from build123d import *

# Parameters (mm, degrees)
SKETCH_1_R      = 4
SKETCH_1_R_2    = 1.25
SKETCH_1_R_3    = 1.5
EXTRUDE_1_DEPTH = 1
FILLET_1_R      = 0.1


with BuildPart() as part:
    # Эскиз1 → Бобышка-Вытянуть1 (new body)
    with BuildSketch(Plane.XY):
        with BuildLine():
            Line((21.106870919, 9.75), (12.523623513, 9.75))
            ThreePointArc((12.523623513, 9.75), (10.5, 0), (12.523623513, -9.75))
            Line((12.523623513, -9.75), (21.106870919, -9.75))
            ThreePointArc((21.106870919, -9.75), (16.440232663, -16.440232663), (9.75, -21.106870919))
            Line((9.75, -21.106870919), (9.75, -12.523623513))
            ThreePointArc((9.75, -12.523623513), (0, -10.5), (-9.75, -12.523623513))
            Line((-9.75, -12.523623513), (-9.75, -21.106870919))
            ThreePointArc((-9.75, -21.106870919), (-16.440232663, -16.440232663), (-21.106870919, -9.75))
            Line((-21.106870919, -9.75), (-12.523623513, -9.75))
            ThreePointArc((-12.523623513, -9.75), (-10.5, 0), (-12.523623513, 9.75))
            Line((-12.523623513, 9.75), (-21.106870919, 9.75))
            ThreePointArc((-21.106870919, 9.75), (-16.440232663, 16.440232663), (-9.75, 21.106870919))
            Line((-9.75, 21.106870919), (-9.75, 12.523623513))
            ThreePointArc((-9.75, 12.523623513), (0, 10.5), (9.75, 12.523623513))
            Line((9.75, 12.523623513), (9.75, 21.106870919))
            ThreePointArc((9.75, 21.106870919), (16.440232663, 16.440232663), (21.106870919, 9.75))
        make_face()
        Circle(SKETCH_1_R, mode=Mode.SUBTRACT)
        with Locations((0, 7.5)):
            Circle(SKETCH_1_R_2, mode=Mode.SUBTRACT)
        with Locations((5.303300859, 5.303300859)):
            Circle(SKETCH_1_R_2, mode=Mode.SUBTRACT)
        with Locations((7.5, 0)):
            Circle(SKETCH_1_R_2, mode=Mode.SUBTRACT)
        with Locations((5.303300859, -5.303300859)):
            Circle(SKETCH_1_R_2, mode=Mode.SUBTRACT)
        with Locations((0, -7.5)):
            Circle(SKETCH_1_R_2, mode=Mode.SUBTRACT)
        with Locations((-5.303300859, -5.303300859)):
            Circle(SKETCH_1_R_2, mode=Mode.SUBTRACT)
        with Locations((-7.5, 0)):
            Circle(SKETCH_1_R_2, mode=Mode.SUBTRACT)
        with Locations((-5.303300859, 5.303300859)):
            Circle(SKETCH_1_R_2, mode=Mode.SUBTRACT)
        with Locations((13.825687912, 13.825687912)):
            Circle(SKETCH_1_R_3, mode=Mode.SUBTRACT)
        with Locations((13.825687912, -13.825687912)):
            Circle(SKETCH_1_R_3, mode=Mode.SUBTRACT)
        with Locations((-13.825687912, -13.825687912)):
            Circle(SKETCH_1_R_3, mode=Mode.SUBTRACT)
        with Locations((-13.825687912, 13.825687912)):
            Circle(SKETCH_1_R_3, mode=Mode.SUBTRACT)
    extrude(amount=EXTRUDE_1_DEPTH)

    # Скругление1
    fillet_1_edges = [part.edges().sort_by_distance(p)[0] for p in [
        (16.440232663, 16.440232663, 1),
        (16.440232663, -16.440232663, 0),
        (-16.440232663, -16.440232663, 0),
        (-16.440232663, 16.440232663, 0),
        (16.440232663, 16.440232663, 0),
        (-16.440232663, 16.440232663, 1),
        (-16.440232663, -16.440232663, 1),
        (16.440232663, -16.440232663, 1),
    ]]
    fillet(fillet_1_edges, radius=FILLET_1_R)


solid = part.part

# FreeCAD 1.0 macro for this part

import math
import FreeCAD as App
import Part
import Sketcher


def edges_at(feature, points):
    """Names of the edges that pass closest to the given points."""
    edges = feature.Shape.Edges
    near = lambda p: min(range(len(edges)), key=lambda i: edges[i].distToShape(Part.Vertex(*p))[0])
    return sorted({f"Edge{near(p) + 1}" for p in points})

doc = App.newDocument("Part")
params = doc.addObject("Spreadsheet::Sheet", "Params")
for row, (alias, value) in enumerate([
    ("sketch1_diameter", "3 mm"),
    ("sketch1_diameter2", "8 mm"),
    ("sketch1_diameter3", "2.5 mm"),
    ("sketch1_radius", "24.5 mm"),
    ("sketch1_radius2", "23.25 mm"),
    ("pad1_length", "1 mm"),
    ("fillet_radius", "0.1 mm"),
], start=1):
    params.set(f"A{row}", alias)
    params.set(f"B{row}", "=" + value)
    params.setAlias(f"B{row}", alias)

body = doc.addObject("PartDesign::Body", "Body")

# Sketch on XY plane
sketch1 = doc.addObject("Sketcher::SketchObject", "Sketch")
body.addObject(sketch1)
sketch1.AttachmentSupport = (doc.XY_Plane, [""])
sketch1.MapMode = "FlatFace"
sketch1.addGeometry([
    Part.LineSegment(App.Vector(12.5, 9.8, 0), App.Vector(21.1, 9.8, 0)),  # 0
    Part.ArcOfCircle(Part.Circle(App.Vector(0, 0, 0), App.Vector(0, 0, 1), 23.2), math.radians(25), math.radians(65)),  # 1
    Part.LineSegment(App.Vector(9.8, 21.1, 0), App.Vector(9.8, 12.5, 0)),  # 2
    Part.ArcOfCircle(Part.Circle(App.Vector(0, 35, 0), App.Vector(0, 0, 1), 24.5), math.radians(-113), math.radians(-67)),  # 3
    Part.LineSegment(App.Vector(-9.8, 12.5, 0), App.Vector(-9.8, 21.1, 0)),  # 4
    Part.ArcOfCircle(Part.Circle(App.Vector(0, 0, 0), App.Vector(0, 0, 1), 23.2), math.radians(115), math.radians(155)),  # 5
    Part.LineSegment(App.Vector(-21.1, 9.8, 0), App.Vector(-12.5, 9.8, 0)),  # 6
    Part.ArcOfCircle(Part.Circle(App.Vector(-35, 0, 0), App.Vector(0, 0, 1), 24.5), math.radians(-23), math.radians(23)),  # 7
    Part.LineSegment(App.Vector(-12.5, -9.8, 0), App.Vector(-21.1, -9.8, 0)),  # 8
    Part.ArcOfCircle(Part.Circle(App.Vector(0, 0, 0), App.Vector(0, 0, 1), 23.2), math.radians(-155), math.radians(-115)),  # 9
    Part.LineSegment(App.Vector(-9.8, -21.1, 0), App.Vector(-9.8, -12.5, 0)),  # 10
    Part.ArcOfCircle(Part.Circle(App.Vector(0, -35, 0), App.Vector(0, 0, 1), 24.5), math.radians(67), math.radians(113)),  # 11
    Part.LineSegment(App.Vector(9.8, -12.5, 0), App.Vector(9.8, -21.1, 0)),  # 12
    Part.ArcOfCircle(Part.Circle(App.Vector(0, 0, 0), App.Vector(0, 0, 1), 23.2), math.radians(-65), math.radians(-25)),  # 13
    Part.LineSegment(App.Vector(21.1, -9.8, 0), App.Vector(12.5, -9.8, 0)),  # 14
    Part.ArcOfCircle(Part.Circle(App.Vector(35, 0, 0), App.Vector(0, 0, 1), 24.5), math.radians(157), math.radians(203)),  # 15
    Part.Circle(App.Vector(13.8, -13.8, 0), App.Vector(0, 0, 1), 1.5),  # 16
    Part.Circle(App.Vector(5.3, -5.3, 0), App.Vector(0, 0, 1), 1.2),  # 17
    Part.Circle(App.Vector(0, -7.5, 0), App.Vector(0, 0, 1), 1.2),  # 18
    Part.Circle(App.Vector(7.5, 0, 0), App.Vector(0, 0, 1), 1.2),  # 19
    Part.Circle(App.Vector(0, 0, 0), App.Vector(0, 0, 1), 4),  # 20
    Part.Circle(App.Vector(-13.8, -13.8, 0), App.Vector(0, 0, 1), 1.5),  # 21
    Part.Circle(App.Vector(-5.3, -5.3, 0), App.Vector(0, 0, 1), 1.2),  # 22
    Part.Circle(App.Vector(-7.5, 0, 0), App.Vector(0, 0, 1), 1.2),  # 23
    Part.Circle(App.Vector(5.3, 5.3, 0), App.Vector(0, 0, 1), 1.2),  # 24
    Part.Circle(App.Vector(0, 7.5, 0), App.Vector(0, 0, 1), 1.2),  # 25
    Part.Circle(App.Vector(13.8, 13.8, 0), App.Vector(0, 0, 1), 1.5),  # 26
    Part.Circle(App.Vector(-5.3, 5.3, 0), App.Vector(0, 0, 1), 1.2),  # 27
    Part.Circle(App.Vector(-13.8, 13.8, 0), App.Vector(0, 0, 1), 1.5),  # 28
], False)
sketch1.addConstraint([
    Sketcher.Constraint("Coincident", 0, 2, 1, 1),
    Sketcher.Constraint("Coincident", 1, 2, 2, 1),
    Sketcher.Constraint("Coincident", 2, 2, 3, 2),
    Sketcher.Constraint("Coincident", 3, 1, 4, 1),
    Sketcher.Constraint("Coincident", 4, 2, 5, 1),
    Sketcher.Constraint("Coincident", 5, 2, 6, 1),
    Sketcher.Constraint("Coincident", 6, 2, 7, 2),
    Sketcher.Constraint("Coincident", 7, 1, 8, 1),
    Sketcher.Constraint("Coincident", 8, 2, 9, 1),
    Sketcher.Constraint("Coincident", 9, 2, 10, 1),
    Sketcher.Constraint("Coincident", 10, 2, 11, 2),
    Sketcher.Constraint("Coincident", 11, 1, 12, 1),
    Sketcher.Constraint("Coincident", 12, 2, 13, 1),
    Sketcher.Constraint("Coincident", 13, 2, 14, 1),
    Sketcher.Constraint("Coincident", 14, 2, 15, 2),
    Sketcher.Constraint("Coincident", 15, 1, 0, 1),
    Sketcher.Constraint("Horizontal", 0),
    Sketcher.Constraint("Vertical", 2),
    Sketcher.Constraint("Vertical", 4),
    Sketcher.Constraint("Horizontal", 6),
    Sketcher.Constraint("Horizontal", 8),
    Sketcher.Constraint("Vertical", 10),
    Sketcher.Constraint("Vertical", 12),
    Sketcher.Constraint("Horizontal", 14),
    Sketcher.Constraint("Coincident", 1, 3, -1, 1),
    Sketcher.Constraint("Coincident", 5, 3, -1, 1),
    Sketcher.Constraint("Coincident", 9, 3, -1, 1),
    Sketcher.Constraint("Coincident", 13, 3, -1, 1),
    Sketcher.Constraint("Coincident", 20, 3, -1, 1),
    Sketcher.Constraint("Equal", 1, 5),
    Sketcher.Constraint("Equal", 3, 7),
    Sketcher.Constraint("Equal", 5, 9),
    Sketcher.Constraint("Equal", 7, 11),
    Sketcher.Constraint("Equal", 9, 13),
    Sketcher.Constraint("Equal", 11, 15),
    Sketcher.Constraint("Equal", 17, 18),
    Sketcher.Constraint("Equal", 18, 19),
    Sketcher.Constraint("Equal", 16, 21),
    Sketcher.Constraint("Equal", 19, 22),
    Sketcher.Constraint("Equal", 22, 23),
    Sketcher.Constraint("Equal", 23, 24),
    Sketcher.Constraint("Equal", 24, 25),
    Sketcher.Constraint("Equal", 21, 26),
    Sketcher.Constraint("Equal", 25, 27),
    Sketcher.Constraint("Equal", 26, 28),
    Sketcher.Constraint("Symmetric", 3, 3, 11, 3, -1, 1),
    Sketcher.Constraint("Symmetric", 7, 3, 15, 3, -1, 1),
    Sketcher.Constraint("Symmetric", 19, 3, 23, 3, -1, 1),
    Sketcher.Constraint("Symmetric", 22, 3, 24, 3, -1, 1),
    Sketcher.Constraint("Symmetric", 18, 3, 25, 3, -1, 1),
    Sketcher.Constraint("Symmetric", 21, 3, 26, 3, -1, 1),
    Sketcher.Constraint("Symmetric", 17, 3, 27, 3, -1, 1),
    Sketcher.Constraint("Symmetric", 16, 3, 28, 3, -1, 1),
    Sketcher.Constraint("Symmetric", 16, 3, 21, 3, -2),
    Sketcher.Constraint("Symmetric", 17, 3, 22, 3, -2),
    Sketcher.Constraint("Symmetric", 2, 2, 3, 1, -2),
    Sketcher.Constraint("Symmetric", 7, 1, 14, 2, -2),
    Sketcher.Constraint("PointOnObject", 18, 3, -2),
    Sketcher.Constraint("PointOnObject", 19, 3, -1),
    Sketcher.Constraint("Horizontal", 0, 2, 5, 2),
    Sketcher.Constraint("Horizontal", 10, 2, 11, 1),
    Sketcher.Constraint("Vertical", 6, 2, 7, 1),
    Sketcher.Constraint("Vertical", 4, 2, 9, 2),
    Sketcher.Constraint("Equal", 14, 2),
    Sketcher.Constraint("Diameter", 16, 3.0),
    Sketcher.Constraint("Diameter", 20, 8.0),
    Sketcher.Constraint("Diameter", 17, 2.5),
    Sketcher.Constraint("Radius", 3, 24.5),
    Sketcher.Constraint("Radius", 1, 23.25),
    Sketcher.Constraint("DistanceY", -1, 1, 3, 3, 35.0),
    Sketcher.Constraint("DistanceX", 7, 3, -1, 1, 35.0),
    Sketcher.Constraint("DistanceY", 18, 3, -1, 1, 7.5),
    Sketcher.Constraint("DistanceX", -1, 1, 19, 3, 7.5),
    Sketcher.Constraint("DistanceY", -1, 1, 0, 2, 9.75),
    Sketcher.Constraint("DistanceX", -1, 1, 17, 3, 5.303301),
    Sketcher.Constraint("DistanceY", 17, 3, -1, 1, 5.303301),
    Sketcher.Constraint("DistanceX", -1, 1, 16, 3, 13.825688),
    Sketcher.Constraint("DistanceY", 16, 3, -1, 1, 13.825688),
])
sketch1.setExpression("Constraints[64]", "Params.sketch1_diameter")
sketch1.setExpression("Constraints[65]", "Params.sketch1_diameter2")
sketch1.setExpression("Constraints[66]", "Params.sketch1_diameter3")
sketch1.setExpression("Constraints[67]", "Params.sketch1_radius")
sketch1.setExpression("Constraints[68]", "Params.sketch1_radius2")
pad1 = doc.addObject("PartDesign::Pad", "Pad")
body.addObject(pad1)
pad1.Profile = sketch1
pad1.setExpression("Length", "Params.pad1_length")
doc.recompute()

fillet = doc.addObject("PartDesign::Fillet", "Fillet")
body.addObject(fillet)
fillet.Base = (pad1, edges_at(pad1, [
    (16.44, 16.44, 1),
    (16.44, -16.44, 0),
    (-16.44, -16.44, 0),
    (-16.44, 16.44, 0),
    (16.44, 16.44, 0),
    (-16.44, 16.44, 1),
    (-16.44, -16.44, 1),
    (16.44, -16.44, 1),
]))
fillet.setExpression("Radius", "Params.fillet_radius")

doc.recompute()
